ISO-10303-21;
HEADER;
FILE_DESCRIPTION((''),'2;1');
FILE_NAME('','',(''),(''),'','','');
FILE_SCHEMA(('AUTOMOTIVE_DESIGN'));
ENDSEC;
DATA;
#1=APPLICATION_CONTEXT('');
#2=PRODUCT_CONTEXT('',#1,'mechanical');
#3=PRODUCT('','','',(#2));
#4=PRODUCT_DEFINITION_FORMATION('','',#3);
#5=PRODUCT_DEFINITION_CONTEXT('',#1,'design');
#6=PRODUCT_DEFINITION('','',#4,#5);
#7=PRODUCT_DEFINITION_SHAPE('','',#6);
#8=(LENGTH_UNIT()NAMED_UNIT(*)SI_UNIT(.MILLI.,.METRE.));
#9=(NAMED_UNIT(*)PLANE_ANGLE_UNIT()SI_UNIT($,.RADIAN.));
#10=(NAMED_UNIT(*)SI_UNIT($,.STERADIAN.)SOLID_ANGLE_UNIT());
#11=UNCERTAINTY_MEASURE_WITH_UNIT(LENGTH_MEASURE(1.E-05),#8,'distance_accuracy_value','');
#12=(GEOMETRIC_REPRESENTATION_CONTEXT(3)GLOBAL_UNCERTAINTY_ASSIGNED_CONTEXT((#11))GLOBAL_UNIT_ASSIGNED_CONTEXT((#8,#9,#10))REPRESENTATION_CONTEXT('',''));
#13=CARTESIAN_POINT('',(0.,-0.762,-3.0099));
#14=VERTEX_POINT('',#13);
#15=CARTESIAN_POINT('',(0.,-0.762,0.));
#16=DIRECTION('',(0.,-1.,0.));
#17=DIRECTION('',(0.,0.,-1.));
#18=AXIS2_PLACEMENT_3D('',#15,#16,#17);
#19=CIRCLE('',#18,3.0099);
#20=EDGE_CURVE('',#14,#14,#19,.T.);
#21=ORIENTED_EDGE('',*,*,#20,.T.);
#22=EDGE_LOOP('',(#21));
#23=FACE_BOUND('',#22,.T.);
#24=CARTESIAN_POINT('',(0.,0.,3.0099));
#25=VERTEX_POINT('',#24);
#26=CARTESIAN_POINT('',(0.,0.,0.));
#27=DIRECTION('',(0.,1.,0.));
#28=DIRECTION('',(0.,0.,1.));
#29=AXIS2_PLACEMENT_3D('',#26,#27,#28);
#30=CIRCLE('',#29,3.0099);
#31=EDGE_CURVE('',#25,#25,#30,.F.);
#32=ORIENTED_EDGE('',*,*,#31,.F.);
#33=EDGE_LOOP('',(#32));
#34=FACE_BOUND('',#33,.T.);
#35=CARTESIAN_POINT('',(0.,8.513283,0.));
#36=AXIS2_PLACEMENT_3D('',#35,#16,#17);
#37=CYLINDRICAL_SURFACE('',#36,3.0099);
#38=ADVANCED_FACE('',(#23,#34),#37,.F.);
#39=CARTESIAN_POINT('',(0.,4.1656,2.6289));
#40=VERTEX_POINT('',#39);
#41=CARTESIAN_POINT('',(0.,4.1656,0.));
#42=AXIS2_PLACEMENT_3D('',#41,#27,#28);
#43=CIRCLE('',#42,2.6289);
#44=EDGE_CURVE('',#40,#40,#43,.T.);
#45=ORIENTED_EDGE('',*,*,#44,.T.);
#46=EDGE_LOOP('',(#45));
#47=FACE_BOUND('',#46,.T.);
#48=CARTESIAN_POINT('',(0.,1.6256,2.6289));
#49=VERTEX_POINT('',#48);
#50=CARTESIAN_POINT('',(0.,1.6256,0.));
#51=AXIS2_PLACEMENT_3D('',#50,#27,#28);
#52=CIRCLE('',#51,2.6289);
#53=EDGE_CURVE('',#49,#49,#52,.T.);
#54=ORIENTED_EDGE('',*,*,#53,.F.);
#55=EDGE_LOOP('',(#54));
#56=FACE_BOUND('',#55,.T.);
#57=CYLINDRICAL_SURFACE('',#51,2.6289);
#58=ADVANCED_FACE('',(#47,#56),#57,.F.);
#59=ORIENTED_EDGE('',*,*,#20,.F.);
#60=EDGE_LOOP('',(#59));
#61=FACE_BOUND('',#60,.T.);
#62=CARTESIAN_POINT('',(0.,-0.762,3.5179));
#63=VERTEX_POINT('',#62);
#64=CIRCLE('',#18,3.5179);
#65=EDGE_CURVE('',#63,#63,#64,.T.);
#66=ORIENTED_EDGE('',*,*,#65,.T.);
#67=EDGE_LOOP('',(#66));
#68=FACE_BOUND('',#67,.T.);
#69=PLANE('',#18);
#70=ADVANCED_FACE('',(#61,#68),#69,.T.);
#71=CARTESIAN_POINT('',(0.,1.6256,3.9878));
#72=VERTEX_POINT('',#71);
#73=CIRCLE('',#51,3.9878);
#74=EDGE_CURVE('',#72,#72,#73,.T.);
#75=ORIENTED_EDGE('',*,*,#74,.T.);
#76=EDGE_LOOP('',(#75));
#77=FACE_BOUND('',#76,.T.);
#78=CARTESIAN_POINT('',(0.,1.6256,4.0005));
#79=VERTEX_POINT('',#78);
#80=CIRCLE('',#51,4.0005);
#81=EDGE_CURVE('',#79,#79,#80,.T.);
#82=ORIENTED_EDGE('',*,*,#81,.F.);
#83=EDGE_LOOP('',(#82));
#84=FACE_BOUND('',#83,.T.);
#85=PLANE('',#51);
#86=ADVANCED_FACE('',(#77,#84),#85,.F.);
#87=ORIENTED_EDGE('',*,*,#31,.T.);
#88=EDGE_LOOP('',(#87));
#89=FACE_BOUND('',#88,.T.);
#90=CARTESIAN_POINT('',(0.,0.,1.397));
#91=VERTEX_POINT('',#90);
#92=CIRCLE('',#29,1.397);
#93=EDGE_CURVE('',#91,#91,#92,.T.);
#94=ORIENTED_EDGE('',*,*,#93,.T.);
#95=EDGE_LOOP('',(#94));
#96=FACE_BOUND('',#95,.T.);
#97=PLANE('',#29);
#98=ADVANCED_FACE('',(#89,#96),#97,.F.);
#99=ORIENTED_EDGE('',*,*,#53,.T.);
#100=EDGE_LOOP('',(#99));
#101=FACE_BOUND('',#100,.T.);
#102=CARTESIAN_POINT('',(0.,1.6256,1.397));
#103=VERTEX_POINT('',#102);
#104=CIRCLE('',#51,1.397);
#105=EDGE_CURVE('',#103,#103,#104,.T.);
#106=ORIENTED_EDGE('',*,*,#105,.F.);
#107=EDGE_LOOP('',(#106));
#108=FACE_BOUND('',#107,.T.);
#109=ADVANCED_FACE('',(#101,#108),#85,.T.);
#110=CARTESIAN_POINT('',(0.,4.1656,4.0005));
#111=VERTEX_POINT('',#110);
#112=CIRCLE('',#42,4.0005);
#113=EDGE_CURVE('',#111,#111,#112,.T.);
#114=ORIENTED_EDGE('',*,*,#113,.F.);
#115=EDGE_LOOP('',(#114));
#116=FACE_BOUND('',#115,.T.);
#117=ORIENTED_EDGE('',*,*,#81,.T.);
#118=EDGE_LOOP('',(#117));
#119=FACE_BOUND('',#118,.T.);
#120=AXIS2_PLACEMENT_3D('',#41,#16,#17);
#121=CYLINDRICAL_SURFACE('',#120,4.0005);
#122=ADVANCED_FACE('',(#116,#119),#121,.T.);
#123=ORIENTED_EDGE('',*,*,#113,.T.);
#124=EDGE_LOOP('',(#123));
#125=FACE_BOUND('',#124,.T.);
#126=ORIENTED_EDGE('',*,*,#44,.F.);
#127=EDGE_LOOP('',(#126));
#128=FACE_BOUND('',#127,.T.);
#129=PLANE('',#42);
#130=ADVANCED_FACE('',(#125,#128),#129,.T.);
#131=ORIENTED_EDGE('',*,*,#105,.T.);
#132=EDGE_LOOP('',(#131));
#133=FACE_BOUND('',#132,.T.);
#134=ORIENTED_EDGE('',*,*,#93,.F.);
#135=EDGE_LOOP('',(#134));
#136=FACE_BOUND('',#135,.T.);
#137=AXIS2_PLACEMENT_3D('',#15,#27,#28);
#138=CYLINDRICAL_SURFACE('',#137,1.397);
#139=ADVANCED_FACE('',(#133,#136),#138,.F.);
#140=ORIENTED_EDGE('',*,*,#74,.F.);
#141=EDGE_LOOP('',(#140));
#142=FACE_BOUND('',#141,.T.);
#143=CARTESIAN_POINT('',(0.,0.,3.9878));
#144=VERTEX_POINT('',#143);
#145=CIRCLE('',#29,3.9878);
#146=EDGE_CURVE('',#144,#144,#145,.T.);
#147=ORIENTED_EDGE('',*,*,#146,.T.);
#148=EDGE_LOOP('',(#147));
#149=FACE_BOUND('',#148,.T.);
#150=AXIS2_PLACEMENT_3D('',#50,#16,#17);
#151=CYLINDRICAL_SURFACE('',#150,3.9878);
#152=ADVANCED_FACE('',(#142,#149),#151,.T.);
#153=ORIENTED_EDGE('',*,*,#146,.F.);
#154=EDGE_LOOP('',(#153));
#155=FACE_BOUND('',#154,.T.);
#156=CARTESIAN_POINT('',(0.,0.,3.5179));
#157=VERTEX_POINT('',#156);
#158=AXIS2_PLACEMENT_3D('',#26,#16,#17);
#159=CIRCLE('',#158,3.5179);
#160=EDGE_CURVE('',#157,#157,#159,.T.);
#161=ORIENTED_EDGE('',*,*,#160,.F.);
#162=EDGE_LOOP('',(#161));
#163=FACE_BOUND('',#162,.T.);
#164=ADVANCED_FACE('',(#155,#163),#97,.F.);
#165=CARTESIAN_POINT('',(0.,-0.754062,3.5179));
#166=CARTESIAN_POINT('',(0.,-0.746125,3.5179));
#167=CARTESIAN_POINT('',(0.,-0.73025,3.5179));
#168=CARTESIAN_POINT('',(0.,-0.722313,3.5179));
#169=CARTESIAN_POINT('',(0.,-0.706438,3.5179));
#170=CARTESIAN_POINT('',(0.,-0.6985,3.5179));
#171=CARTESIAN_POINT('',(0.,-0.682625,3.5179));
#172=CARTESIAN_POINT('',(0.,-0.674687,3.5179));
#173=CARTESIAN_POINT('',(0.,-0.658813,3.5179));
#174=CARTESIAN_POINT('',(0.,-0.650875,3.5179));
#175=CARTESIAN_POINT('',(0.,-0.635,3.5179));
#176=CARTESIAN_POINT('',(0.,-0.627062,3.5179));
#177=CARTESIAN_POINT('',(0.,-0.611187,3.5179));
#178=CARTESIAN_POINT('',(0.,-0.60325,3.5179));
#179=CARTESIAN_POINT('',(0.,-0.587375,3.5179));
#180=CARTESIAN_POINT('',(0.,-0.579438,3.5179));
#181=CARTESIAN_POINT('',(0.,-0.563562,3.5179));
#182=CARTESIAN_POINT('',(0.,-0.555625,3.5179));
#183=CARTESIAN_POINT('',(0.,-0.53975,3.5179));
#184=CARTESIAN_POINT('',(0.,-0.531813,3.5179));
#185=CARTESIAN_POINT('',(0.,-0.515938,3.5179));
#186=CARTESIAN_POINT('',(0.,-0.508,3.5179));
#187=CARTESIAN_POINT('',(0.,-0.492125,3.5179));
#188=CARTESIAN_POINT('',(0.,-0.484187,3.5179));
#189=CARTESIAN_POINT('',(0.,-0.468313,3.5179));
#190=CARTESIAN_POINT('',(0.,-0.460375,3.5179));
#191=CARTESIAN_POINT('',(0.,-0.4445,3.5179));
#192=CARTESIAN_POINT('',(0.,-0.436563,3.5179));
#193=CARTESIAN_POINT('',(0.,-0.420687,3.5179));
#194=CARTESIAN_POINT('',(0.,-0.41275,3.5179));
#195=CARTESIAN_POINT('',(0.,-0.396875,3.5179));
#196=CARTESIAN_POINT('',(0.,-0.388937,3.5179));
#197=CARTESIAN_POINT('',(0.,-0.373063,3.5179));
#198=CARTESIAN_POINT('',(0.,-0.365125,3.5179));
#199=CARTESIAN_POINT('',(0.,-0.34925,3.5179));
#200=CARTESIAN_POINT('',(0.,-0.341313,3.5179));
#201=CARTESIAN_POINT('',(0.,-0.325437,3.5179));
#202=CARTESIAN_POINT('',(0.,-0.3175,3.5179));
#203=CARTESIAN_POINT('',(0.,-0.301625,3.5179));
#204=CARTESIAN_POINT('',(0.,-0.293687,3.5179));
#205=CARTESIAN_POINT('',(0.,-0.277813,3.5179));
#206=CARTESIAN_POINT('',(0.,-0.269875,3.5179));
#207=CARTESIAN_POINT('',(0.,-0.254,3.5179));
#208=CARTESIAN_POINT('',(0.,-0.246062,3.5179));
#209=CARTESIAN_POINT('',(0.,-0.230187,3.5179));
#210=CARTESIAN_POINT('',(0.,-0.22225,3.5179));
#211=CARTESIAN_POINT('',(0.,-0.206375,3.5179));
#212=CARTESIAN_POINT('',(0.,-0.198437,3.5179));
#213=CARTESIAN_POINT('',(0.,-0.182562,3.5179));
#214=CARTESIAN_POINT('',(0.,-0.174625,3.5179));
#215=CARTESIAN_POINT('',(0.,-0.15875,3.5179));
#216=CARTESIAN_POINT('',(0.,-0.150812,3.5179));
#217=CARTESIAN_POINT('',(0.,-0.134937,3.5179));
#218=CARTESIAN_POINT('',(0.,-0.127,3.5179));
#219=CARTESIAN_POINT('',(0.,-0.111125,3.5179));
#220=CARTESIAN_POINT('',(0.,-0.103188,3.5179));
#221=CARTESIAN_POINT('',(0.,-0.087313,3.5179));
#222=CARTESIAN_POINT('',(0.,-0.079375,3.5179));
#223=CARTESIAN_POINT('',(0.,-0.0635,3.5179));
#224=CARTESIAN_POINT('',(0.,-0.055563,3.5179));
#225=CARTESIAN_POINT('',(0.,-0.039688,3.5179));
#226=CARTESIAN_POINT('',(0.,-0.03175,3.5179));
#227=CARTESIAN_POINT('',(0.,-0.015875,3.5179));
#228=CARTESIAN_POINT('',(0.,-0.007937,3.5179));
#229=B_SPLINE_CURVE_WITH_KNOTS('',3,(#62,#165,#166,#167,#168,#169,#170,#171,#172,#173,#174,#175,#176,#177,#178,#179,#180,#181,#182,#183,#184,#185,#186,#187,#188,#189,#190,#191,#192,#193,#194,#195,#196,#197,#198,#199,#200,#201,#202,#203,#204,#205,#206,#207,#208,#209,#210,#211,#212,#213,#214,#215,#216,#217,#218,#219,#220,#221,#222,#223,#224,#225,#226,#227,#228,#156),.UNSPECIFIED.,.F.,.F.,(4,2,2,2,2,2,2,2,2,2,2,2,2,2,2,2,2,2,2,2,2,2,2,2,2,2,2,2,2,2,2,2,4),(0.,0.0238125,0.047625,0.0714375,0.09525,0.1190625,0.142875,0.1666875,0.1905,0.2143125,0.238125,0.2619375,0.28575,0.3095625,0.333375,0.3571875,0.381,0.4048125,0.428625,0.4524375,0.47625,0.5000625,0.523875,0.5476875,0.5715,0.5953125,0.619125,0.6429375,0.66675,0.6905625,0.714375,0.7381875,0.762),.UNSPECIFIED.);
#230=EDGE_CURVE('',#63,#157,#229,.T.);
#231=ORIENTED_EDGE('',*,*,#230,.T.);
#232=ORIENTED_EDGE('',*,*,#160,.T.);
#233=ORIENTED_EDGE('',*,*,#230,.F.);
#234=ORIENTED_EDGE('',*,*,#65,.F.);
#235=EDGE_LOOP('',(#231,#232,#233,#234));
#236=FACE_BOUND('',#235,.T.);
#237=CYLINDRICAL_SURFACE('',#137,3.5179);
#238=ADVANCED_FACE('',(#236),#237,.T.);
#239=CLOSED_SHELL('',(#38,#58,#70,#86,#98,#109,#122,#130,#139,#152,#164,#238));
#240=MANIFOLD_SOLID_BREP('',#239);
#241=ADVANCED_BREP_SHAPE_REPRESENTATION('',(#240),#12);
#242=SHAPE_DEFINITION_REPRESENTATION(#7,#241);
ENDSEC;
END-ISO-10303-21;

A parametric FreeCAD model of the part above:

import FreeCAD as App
import Part
import Sketcher
from FreeCAD import Vector
Q = App.Units.Quantity

doc = App.newDocument("Part")
body = doc.addObject("PartDesign::Body", "Body")

# Sketch on XZ plane
sketch1 = doc.addObject("Sketcher::SketchObject", "Sketch")
body.addObject(sketch1)
sketch1.AttachmentSupport = (doc.XZ_Plane, [""])
sketch1.MapMode = "FlatFace"
sketch1.addGeometry(Part.Circle(Vector(0, 0, 0), Vector(0, 0, 1), 4), False)
sketch1.addConstraint(Sketcher.Constraint("Coincident", 0, 3, -1, 1))
sketch1.addConstraint(Sketcher.Constraint("Diameter", 0, Q("0.314 in")))
pad1 = doc.addObject("PartDesign::Pad", "Pad")
body.addObject(pad1)
pad1.Profile = sketch1
pad1.Length = Q("0.064 in")
pad1.Reversed = True

# Sketch on XZ plane
sketch2 = doc.addObject("Sketcher::SketchObject", "Sketch001")
body.addObject(sketch2)
sketch2.AttachmentSupport = (doc.XZ_Plane, [""])
sketch2.MapMode = "FlatFace"
sketch2.AttachmentOffset = App.Placement(Vector(0, 0, -0.064 * 25.4), App.Rotation())
sketch2.addGeometry(Part.Circle(Vector(0, 0, 0), Vector(0, 0, 1), 4), False)
sketch2.addConstraint(Sketcher.Constraint("Coincident", 0, 3, -1, 1))
sketch2.addConstraint(Sketcher.Constraint("Diameter", 0, Q("0.315 in")))
pad2 = doc.addObject("PartDesign::Pad", "Pad001")
body.addObject(pad2)
pad2.Profile = sketch2
pad2.Length = Q("0.1 in")
pad2.Reversed = True

# Sketch on XZ plane
sketch3 = doc.addObject("Sketcher::SketchObject", "Sketch002")
body.addObject(sketch3)
sketch3.AttachmentSupport = (doc.XZ_Plane, [""])
sketch3.MapMode = "FlatFace"
sketch3.addGeometry(Part.Circle(Vector(0, 0, 0), Vector(0, 0, 1), 3.5), False)
sketch3.addConstraint(Sketcher.Constraint("Coincident", 0, 3, -1, 1))
sketch3.addConstraint(Sketcher.Constraint("Diameter", 0, Q("0.277 in")))
pad3 = doc.addObject("PartDesign::Pad", "Pad002")
body.addObject(pad3)
pad3.Profile = sketch3
pad3.Length = Q("0.03 in")

# Sketch on XZ plane
sketch4 = doc.addObject("Sketcher::SketchObject", "Sketch003")
body.addObject(sketch4)
sketch4.AttachmentSupport = (doc.XZ_Plane, [""])
sketch4.MapMode = "FlatFace"
sketch4.AttachmentOffset = App.Placement(Vector(0, 0, 0.03 * 25.4), App.Rotation())
sketch4.addGeometry(Part.Circle(Vector(0, 0, 0), Vector(0, 0, 1), 3), False)
sketch4.addConstraint(Sketcher.Constraint("Coincident", 0, 3, -1, 1))
sketch4.addConstraint(Sketcher.Constraint("Diameter", 0, Q("0.237 in")))
pocket1 = doc.addObject("PartDesign::Pocket", "Pocket")
body.addObject(pocket1)
pocket1.Profile = sketch4
pocket1.Length = Q("0.03 in")

# Sketch on XZ plane
sketch5 = doc.addObject("Sketcher::SketchObject", "Sketch004")
body.addObject(sketch5)
sketch5.AttachmentSupport = (doc.XZ_Plane, [""])
sketch5.MapMode = "FlatFace"
sketch5.AttachmentOffset = App.Placement(Vector(0, 0, -0.164 * 25.4), App.Rotation())
sketch5.addGeometry(Part.Circle(Vector(0, 0, 0), Vector(0, 0, 1), 2.6), False)
sketch5.addConstraint(Sketcher.Constraint("Coincident", 0, 3, -1, 1))
sketch5.addConstraint(Sketcher.Constraint("Diameter", 0, Q("0.207 in")))
pocket2 = doc.addObject("PartDesign::Pocket", "Pocket001")
body.addObject(pocket2)
pocket2.Profile = sketch5
pocket2.Length = Q("0.1 in")
pocket2.Reversed = True

# Sketch on XZ plane
sketch6 = doc.addObject("Sketcher::SketchObject", "Sketch005")
body.addObject(sketch6)
sketch6.AttachmentSupport = (doc.XZ_Plane, [""])
sketch6.MapMode = "FlatFace"
sketch6.AttachmentOffset = App.Placement(Vector(0, 0, -0.064 * 25.4), App.Rotation())
sketch6.addGeometry(Part.Circle(Vector(0, 0, 0), Vector(0, 0, 1), 1.4), False)
sketch6.addConstraint(Sketcher.Constraint("Coincident", 0, 3, -1, 1))
sketch6.addConstraint(Sketcher.Constraint("Diameter", 0, Q("0.11 in")))
pocket3 = doc.addObject("PartDesign::Pocket", "Pocket002")
body.addObject(pocket3)
pocket3.Profile = sketch6
pocket3.Type = "ThroughAll"
pocket3.Reversed = True

doc.recompute()
